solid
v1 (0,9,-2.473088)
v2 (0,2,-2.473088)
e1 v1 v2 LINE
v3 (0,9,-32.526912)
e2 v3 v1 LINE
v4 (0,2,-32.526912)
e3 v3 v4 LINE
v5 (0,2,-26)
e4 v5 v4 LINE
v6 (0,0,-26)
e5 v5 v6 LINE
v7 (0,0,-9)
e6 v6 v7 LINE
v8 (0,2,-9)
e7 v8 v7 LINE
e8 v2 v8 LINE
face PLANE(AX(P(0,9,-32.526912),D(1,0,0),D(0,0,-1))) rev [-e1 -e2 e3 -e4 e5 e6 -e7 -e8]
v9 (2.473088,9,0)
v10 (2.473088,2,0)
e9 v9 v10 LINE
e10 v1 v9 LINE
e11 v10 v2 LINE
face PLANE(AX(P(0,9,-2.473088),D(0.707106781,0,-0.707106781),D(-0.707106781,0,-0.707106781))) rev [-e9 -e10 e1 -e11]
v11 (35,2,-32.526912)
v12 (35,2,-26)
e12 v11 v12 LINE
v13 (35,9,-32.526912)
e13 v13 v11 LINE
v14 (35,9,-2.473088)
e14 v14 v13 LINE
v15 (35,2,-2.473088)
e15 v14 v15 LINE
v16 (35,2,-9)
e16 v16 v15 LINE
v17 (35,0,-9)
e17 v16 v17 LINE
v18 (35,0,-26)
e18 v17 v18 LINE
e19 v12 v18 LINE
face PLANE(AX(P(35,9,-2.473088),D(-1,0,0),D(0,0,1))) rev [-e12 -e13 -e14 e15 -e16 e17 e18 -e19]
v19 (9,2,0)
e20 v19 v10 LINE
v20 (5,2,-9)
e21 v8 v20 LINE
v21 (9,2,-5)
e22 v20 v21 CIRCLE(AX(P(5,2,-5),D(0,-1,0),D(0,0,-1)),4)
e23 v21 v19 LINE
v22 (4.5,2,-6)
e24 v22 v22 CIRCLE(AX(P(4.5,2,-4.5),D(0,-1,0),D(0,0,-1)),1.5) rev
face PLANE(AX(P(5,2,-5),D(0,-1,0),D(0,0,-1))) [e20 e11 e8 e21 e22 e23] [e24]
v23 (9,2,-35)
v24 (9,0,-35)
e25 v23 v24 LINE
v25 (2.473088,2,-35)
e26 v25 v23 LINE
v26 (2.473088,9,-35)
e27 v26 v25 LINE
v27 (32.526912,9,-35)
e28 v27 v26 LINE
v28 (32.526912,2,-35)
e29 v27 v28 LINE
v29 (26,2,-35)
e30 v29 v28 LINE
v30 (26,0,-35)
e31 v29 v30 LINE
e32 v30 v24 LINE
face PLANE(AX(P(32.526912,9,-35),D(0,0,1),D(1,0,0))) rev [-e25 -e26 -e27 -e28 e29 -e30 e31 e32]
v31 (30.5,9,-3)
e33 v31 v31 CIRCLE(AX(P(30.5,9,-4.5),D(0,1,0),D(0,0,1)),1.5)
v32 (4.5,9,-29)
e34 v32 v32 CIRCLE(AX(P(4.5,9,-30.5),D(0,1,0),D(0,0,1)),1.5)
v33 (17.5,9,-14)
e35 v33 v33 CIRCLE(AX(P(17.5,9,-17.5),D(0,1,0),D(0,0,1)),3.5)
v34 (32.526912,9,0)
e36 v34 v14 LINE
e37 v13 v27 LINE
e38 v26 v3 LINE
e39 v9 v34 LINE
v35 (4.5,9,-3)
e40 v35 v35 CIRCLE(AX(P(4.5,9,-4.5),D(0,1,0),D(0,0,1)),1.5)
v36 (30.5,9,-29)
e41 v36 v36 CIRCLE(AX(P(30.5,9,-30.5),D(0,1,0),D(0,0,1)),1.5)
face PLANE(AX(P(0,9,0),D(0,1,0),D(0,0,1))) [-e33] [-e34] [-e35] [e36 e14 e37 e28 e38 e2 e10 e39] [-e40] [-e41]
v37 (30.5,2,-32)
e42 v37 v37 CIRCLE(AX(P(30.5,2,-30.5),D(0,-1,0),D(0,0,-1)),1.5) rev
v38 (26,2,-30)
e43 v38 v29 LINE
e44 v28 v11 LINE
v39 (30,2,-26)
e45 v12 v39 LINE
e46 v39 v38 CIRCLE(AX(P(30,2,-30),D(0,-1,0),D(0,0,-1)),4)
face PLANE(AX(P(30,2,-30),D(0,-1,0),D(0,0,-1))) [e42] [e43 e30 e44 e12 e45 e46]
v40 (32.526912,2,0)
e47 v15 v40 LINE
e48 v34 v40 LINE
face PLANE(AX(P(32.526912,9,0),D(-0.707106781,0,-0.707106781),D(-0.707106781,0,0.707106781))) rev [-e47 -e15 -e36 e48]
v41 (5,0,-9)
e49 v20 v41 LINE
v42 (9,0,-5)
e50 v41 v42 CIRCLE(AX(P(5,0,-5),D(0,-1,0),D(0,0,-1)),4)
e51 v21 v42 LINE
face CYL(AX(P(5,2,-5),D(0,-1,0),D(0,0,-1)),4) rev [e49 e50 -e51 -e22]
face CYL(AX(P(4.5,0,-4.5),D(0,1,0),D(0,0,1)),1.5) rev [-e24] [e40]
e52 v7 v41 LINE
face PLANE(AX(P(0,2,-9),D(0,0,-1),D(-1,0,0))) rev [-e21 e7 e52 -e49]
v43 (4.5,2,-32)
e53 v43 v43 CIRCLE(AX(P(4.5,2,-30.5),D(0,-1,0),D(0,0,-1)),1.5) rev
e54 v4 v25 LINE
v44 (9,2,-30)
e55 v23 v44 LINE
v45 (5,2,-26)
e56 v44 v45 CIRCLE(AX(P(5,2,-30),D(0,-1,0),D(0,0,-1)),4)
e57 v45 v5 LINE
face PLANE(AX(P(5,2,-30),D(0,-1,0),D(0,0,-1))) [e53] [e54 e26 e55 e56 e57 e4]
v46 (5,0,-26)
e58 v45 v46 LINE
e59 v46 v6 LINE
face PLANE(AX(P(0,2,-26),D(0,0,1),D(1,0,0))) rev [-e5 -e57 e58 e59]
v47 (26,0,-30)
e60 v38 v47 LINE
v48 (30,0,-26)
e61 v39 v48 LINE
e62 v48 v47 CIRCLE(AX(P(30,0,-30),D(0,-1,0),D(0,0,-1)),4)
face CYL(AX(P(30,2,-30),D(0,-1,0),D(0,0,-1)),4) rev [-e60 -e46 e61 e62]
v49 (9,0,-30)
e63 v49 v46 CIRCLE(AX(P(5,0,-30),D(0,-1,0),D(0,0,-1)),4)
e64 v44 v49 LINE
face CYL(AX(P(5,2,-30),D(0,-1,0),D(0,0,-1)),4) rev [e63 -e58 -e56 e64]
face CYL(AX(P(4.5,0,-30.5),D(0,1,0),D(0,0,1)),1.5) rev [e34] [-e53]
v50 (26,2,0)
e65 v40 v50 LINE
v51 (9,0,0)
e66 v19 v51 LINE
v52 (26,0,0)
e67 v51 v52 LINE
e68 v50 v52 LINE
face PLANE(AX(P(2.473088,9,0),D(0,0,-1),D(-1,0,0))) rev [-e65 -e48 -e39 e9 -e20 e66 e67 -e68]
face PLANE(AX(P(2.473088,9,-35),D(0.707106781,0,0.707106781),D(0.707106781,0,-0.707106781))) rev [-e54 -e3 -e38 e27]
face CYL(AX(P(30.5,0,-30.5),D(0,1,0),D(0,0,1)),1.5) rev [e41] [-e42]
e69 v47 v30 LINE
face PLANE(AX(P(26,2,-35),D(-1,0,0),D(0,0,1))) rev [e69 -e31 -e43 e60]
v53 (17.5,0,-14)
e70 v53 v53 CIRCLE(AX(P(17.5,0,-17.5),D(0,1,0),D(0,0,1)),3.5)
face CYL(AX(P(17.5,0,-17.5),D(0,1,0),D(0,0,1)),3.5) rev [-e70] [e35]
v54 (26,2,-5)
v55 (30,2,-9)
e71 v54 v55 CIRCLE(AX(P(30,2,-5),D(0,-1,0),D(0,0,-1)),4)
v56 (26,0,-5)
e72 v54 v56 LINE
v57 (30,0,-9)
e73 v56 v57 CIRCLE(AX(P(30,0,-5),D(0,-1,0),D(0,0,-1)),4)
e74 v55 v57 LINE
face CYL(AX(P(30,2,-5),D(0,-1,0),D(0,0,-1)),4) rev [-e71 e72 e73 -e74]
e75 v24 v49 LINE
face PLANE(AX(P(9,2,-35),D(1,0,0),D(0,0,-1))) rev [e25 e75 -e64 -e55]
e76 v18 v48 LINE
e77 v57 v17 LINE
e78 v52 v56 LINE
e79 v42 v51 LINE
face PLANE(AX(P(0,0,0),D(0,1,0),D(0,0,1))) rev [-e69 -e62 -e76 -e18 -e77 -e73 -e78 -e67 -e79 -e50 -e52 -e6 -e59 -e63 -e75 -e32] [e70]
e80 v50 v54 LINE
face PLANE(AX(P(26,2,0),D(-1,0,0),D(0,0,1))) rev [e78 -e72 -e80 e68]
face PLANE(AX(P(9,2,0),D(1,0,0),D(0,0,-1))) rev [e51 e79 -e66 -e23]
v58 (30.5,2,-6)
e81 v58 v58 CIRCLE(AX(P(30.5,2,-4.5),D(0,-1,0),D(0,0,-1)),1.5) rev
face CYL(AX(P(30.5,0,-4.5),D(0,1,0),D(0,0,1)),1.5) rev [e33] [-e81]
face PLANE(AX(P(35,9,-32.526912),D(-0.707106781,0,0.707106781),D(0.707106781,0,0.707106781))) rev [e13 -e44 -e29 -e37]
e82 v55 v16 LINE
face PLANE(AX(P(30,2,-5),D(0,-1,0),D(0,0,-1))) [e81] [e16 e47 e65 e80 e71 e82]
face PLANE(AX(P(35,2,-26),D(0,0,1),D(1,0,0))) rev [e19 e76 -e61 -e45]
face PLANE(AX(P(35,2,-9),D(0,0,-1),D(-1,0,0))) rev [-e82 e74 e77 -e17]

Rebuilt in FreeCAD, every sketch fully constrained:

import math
import FreeCAD as App
import Part
import Sketcher

V = App.Vector


def add_polygon(sketch, points):
    """Adds a closed chain of lines whose ends are joined by coincident constraints."""
    first, n = sketch.GeometryCount, len(points)
    for a, b in zip(points, points[1:] + points[:1]):
        sketch.addGeometry(Part.LineSegment(App.Vector(*a, 0), App.Vector(*b, 0)), False)
    for i in range(n):
        sketch.addConstraint(Sketcher.Constraint("Coincident", first + i, 2, first + (i + 1) % n, 1))

doc = App.newDocument("Part")
body = doc.addObject("PartDesign::Body", "Body")

# Sketch on XZ plane
sketch1 = body.newObject("Sketcher::SketchObject", "Sketch")
sketch1.AttachmentSupport = (doc.getObject("XZ_Plane"), [""])
sketch1.MapMode = "FlatFace"
add_polygon(sketch1, [(0, -2.473088), (2.473088, 0), (32.526912, 0), (35, -2.473088), (35, -32.526912), (32.526912, -35), (2.473088, -35), (0, -32.526912)])  # lines 0-7
sketch1.addConstraint([
    Sketcher.Constraint("Horizontal", 1),
    Sketcher.Constraint("Vertical", 3),
    Sketcher.Constraint("Horizontal", 5),
    Sketcher.Constraint("Vertical", 7),
    Sketcher.Constraint("PointOnObject", 0, 2, -1),
    Sketcher.Constraint("PointOnObject", 6, 2, -2),
    Sketcher.Constraint("Perpendicular", 0, 2),
    Sketcher.Constraint("Perpendicular", 2, 4),
    Sketcher.Constraint("Perpendicular", 4, 6),
    Sketcher.Constraint("Horizontal", 3, 2, 6, 2),
    Sketcher.Constraint("Horizontal", 2, 2, 7, 2),
    Sketcher.Constraint("Vertical", 1, 2, 4, 2),
    Sketcher.Constraint("Vertical", 0, 2, 5, 2),
    Sketcher.Constraint("Equal", 5, 3),
    Sketcher.Constraint("DistanceX", -1, 1, 2, 2, 35.0),
    Sketcher.Constraint("DistanceX", 1, 1, 1, 2, 30.053824),
])
pad1 = body.newObject("PartDesign::Pad", "Pad")
pad1.Profile = sketch1
pad1.Length = 9
pad1.Reversed = True

# Sketch on XZ plane
sketch2 = body.newObject("Sketcher::SketchObject", "Sketch001")
sketch2.AttachmentSupport = (doc.getObject("XZ_Plane"), [""])
sketch2.MapMode = "FlatFace"
sketch2.AttachmentOffset = App.Placement(V(0, 0, -9), App.Rotation())
sketch2.addGeometry(Part.Circle(V(17.5, -17.5, 0), V(0, 0, 1), 3.5), False)
sketch2.addConstraint([
    Sketcher.Constraint("Diameter", 0, 7.0),
    Sketcher.Constraint("DistanceX", -1, 1, 0, 3, 17.5),
    Sketcher.Constraint("DistanceY", 0, 3, -1, 1, 17.5),
])
pocket1 = body.newObject("PartDesign::Pocket", "Pocket")
pocket1.Profile = sketch2
pocket1.Type = "ThroughAll"
pocket1.Reversed = True

# Sketch on XZ plane
sketch3 = body.newObject("Sketcher::SketchObject", "Sketch002")
sketch3.AttachmentSupport = (doc.getObject("XZ_Plane"), [""])
sketch3.MapMode = "FlatFace"
sketch3.AttachmentOffset = App.Placement(V(0, 0, -9), App.Rotation())
sketch3.addGeometry([
    Part.Circle(V(4.5, -30.5, 0), V(0, 0, 1), 1.5),
    Part.Circle(V(30.5, -30.5, 0), V(0, 0, 1), 1.5),
    Part.Circle(V(30.5, -4.5, 0), V(0, 0, 1), 1.5),
    Part.Circle(V(4.5, -4.5, 0), V(0, 0, 1), 1.5),
], False)
sketch3.addConstraint([
    Sketcher.Constraint("Equal", 0, 1),
    Sketcher.Constraint("Equal", 1, 2),
    Sketcher.Constraint("Equal", 2, 3),
    Sketcher.Constraint("Horizontal", 0, 3, 1, 3),
    Sketcher.Constraint("Horizontal", 2, 3, 3, 3),
    Sketcher.Constraint("Vertical", 1, 3, 2, 3),
    Sketcher.Constraint("Vertical", 0, 3, 3, 3),
    Sketcher.Constraint("Diameter", 0, 3.0),
    Sketcher.Constraint("DistanceX", 0, 3, 1, 3, 26.0),
    Sketcher.Constraint("DistanceY", 1, 3, 2, 3, 26.0),
    Sketcher.Constraint("DistanceX", -1, 1, 0, 3, 4.5),
    Sketcher.Constraint("DistanceY", 0, 3, -1, 1, 30.5),
])
pocket2 = body.newObject("PartDesign::Pocket", "Pocket001")
pocket2.Profile = sketch3
pocket2.Type = "ThroughAll"
pocket2.Reversed = True

# Sketch on XZ plane
sketch4 = body.newObject("Sketcher::SketchObject", "Sketch003")
sketch4.AttachmentSupport = (doc.getObject("XZ_Plane"), [""])
sketch4.MapMode = "FlatFace"
sketch4.addGeometry([
    Part.LineSegment(V(35, -9, 0), V(35, 0, 0)),  # 0
    Part.LineSegment(V(35, 0, 0), V(26, 0, 0)),  # 1
    Part.LineSegment(V(26, 0, 0), V(26, -5, 0)),  # 2
    Part.ArcOfCircle(Part.Circle(V(30, -5, 0), V(0, 0, 1), 4), math.radians(180), math.radians(270)),  # 3
    Part.LineSegment(V(30, -9, 0), V(35, -9, 0)),  # 4
    Part.LineSegment(V(9, 0, 0), V(0, 0, 0)),  # 5
    Part.LineSegment(V(0, 0, 0), V(0, -9, 0)),  # 6
    Part.LineSegment(V(0, -9, 0), V(5, -9, 0)),  # 7
    Part.ArcOfCircle(Part.Circle(V(5, -5, 0), V(0, 0, 1), 4), math.radians(-90), math.radians(0)),  # 8
    Part.LineSegment(V(9, -5, 0), V(9, 0, 0)),  # 9
    Part.LineSegment(V(26, -35, 0), V(35, -35, 0)),  # 10
    Part.LineSegment(V(35, -35, 0), V(35, -26, 0)),  # 11
    Part.LineSegment(V(35, -26, 0), V(30, -26, 0)),  # 12
    Part.ArcOfCircle(Part.Circle(V(30, -30, 0), V(0, 0, 1), 4), math.radians(90), math.radians(180)),  # 13
    Part.LineSegment(V(26, -30, 0), V(26, -35, 0)),  # 14
    Part.LineSegment(V(0, -26, 0), V(0, -35, 0)),  # 15
    Part.LineSegment(V(0, -35, 0), V(9, -35, 0)),  # 16
    Part.LineSegment(V(9, -35, 0), V(9, -30, 0)),  # 17
    Part.ArcOfCircle(Part.Circle(V(5, -30, 0), V(0, 0, 1), 4), math.radians(0), math.radians(90)),  # 18
    Part.LineSegment(V(5, -26, 0), V(0, -26, 0)),  # 19
], False)
sketch4.addConstraint([
    Sketcher.Constraint("Coincident", 0, 2, 1, 1),
    Sketcher.Constraint("Coincident", 1, 2, 2, 1),
    Sketcher.Constraint("Tangent", 2, 2, 3, 1),
    Sketcher.Constraint("Tangent", 3, 2, 4, 1),
    Sketcher.Constraint("Coincident", 4, 2, 0, 1),
    Sketcher.Constraint("Coincident", 5, 2, 6, 1),
    Sketcher.Constraint("Coincident", 6, 2, 7, 1),
    Sketcher.Constraint("Tangent", 7, 2, 8, 1),
    Sketcher.Constraint("Tangent", 8, 2, 9, 1),
    Sketcher.Constraint("Coincident", 9, 2, 5, 1),
    Sketcher.Constraint("Coincident", 10, 2, 11, 1),
    Sketcher.Constraint("Coincident", 11, 2, 12, 1),
    Sketcher.Constraint("Tangent", 12, 2, 13, 1),
    Sketcher.Constraint("Tangent", 13, 2, 14, 1),
    Sketcher.Constraint("Coincident", 14, 2, 10, 1),
    Sketcher.Constraint("Coincident", 15, 2, 16, 1),
    Sketcher.Constraint("Coincident", 16, 2, 17, 1),
    Sketcher.Constraint("Tangent", 17, 2, 18, 1),
    Sketcher.Constraint("Tangent", 18, 2, 19, 1),
    Sketcher.Constraint("Coincident", 19, 2, 15, 1),
    Sketcher.Constraint("Vertical", 0),
    Sketcher.Constraint("Horizontal", 1),
    Sketcher.Constraint("Vertical", 2),
    Sketcher.Constraint("Horizontal", 4),
    Sketcher.Constraint("Horizontal", 5),
    Sketcher.Constraint("Vertical", 6),
    Sketcher.Constraint("Horizontal", 7),
    Sketcher.Constraint("Vertical", 9),
    Sketcher.Constraint("Horizontal", 10),
    Sketcher.Constraint("Vertical", 11),
    Sketcher.Constraint("Horizontal", 12),
    Sketcher.Constraint("Vertical", 14),
    Sketcher.Constraint("Vertical", 15),
    Sketcher.Constraint("Horizontal", 16),
    Sketcher.Constraint("Vertical", 17),
    Sketcher.Constraint("Horizontal", 19),
    Sketcher.Constraint("Coincident", 5, 2, -1, 1),
    Sketcher.Constraint("Equal", 3, 8),
    Sketcher.Constraint("Equal", 8, 13),
    Sketcher.Constraint("Equal", 13, 18),
    Sketcher.Constraint("PointOnObject", 0, 2, -1),
    Sketcher.Constraint("PointOnObject", 15, 2, -2),
    Sketcher.Constraint("Horizontal", 3, 3, 8, 3),
    Sketcher.Constraint("Horizontal", 13, 3, 18, 3),
    Sketcher.Constraint("Horizontal", 14, 2, 15, 2),
    Sketcher.Constraint("Vertical", 3, 3, 13, 3),
    Sketcher.Constraint("Vertical", 8, 3, 18, 3),
    Sketcher.Constraint("Vertical", 4, 2, 10, 2),
    Sketcher.Constraint("Equal", 1, 5),
    Sketcher.Constraint("Equal", 16, 0),
    Sketcher.Constraint("Equal", 6, 11),
    Sketcher.Constraint("Radius", 3, 4.0),
    Sketcher.Constraint("DistanceX", 1, 2, 1, 1, 9.0),
    Sketcher.Constraint("DistanceX", -1, 1, 3, 3, 30.0),
    Sketcher.Constraint("DistanceY", 13, 3, -1, 1, 30.0),
])
pocket3 = body.newObject("PartDesign::Pocket", "Pocket002")
pocket3.Profile = sketch4
pocket3.Length = 2

doc.recompute()
